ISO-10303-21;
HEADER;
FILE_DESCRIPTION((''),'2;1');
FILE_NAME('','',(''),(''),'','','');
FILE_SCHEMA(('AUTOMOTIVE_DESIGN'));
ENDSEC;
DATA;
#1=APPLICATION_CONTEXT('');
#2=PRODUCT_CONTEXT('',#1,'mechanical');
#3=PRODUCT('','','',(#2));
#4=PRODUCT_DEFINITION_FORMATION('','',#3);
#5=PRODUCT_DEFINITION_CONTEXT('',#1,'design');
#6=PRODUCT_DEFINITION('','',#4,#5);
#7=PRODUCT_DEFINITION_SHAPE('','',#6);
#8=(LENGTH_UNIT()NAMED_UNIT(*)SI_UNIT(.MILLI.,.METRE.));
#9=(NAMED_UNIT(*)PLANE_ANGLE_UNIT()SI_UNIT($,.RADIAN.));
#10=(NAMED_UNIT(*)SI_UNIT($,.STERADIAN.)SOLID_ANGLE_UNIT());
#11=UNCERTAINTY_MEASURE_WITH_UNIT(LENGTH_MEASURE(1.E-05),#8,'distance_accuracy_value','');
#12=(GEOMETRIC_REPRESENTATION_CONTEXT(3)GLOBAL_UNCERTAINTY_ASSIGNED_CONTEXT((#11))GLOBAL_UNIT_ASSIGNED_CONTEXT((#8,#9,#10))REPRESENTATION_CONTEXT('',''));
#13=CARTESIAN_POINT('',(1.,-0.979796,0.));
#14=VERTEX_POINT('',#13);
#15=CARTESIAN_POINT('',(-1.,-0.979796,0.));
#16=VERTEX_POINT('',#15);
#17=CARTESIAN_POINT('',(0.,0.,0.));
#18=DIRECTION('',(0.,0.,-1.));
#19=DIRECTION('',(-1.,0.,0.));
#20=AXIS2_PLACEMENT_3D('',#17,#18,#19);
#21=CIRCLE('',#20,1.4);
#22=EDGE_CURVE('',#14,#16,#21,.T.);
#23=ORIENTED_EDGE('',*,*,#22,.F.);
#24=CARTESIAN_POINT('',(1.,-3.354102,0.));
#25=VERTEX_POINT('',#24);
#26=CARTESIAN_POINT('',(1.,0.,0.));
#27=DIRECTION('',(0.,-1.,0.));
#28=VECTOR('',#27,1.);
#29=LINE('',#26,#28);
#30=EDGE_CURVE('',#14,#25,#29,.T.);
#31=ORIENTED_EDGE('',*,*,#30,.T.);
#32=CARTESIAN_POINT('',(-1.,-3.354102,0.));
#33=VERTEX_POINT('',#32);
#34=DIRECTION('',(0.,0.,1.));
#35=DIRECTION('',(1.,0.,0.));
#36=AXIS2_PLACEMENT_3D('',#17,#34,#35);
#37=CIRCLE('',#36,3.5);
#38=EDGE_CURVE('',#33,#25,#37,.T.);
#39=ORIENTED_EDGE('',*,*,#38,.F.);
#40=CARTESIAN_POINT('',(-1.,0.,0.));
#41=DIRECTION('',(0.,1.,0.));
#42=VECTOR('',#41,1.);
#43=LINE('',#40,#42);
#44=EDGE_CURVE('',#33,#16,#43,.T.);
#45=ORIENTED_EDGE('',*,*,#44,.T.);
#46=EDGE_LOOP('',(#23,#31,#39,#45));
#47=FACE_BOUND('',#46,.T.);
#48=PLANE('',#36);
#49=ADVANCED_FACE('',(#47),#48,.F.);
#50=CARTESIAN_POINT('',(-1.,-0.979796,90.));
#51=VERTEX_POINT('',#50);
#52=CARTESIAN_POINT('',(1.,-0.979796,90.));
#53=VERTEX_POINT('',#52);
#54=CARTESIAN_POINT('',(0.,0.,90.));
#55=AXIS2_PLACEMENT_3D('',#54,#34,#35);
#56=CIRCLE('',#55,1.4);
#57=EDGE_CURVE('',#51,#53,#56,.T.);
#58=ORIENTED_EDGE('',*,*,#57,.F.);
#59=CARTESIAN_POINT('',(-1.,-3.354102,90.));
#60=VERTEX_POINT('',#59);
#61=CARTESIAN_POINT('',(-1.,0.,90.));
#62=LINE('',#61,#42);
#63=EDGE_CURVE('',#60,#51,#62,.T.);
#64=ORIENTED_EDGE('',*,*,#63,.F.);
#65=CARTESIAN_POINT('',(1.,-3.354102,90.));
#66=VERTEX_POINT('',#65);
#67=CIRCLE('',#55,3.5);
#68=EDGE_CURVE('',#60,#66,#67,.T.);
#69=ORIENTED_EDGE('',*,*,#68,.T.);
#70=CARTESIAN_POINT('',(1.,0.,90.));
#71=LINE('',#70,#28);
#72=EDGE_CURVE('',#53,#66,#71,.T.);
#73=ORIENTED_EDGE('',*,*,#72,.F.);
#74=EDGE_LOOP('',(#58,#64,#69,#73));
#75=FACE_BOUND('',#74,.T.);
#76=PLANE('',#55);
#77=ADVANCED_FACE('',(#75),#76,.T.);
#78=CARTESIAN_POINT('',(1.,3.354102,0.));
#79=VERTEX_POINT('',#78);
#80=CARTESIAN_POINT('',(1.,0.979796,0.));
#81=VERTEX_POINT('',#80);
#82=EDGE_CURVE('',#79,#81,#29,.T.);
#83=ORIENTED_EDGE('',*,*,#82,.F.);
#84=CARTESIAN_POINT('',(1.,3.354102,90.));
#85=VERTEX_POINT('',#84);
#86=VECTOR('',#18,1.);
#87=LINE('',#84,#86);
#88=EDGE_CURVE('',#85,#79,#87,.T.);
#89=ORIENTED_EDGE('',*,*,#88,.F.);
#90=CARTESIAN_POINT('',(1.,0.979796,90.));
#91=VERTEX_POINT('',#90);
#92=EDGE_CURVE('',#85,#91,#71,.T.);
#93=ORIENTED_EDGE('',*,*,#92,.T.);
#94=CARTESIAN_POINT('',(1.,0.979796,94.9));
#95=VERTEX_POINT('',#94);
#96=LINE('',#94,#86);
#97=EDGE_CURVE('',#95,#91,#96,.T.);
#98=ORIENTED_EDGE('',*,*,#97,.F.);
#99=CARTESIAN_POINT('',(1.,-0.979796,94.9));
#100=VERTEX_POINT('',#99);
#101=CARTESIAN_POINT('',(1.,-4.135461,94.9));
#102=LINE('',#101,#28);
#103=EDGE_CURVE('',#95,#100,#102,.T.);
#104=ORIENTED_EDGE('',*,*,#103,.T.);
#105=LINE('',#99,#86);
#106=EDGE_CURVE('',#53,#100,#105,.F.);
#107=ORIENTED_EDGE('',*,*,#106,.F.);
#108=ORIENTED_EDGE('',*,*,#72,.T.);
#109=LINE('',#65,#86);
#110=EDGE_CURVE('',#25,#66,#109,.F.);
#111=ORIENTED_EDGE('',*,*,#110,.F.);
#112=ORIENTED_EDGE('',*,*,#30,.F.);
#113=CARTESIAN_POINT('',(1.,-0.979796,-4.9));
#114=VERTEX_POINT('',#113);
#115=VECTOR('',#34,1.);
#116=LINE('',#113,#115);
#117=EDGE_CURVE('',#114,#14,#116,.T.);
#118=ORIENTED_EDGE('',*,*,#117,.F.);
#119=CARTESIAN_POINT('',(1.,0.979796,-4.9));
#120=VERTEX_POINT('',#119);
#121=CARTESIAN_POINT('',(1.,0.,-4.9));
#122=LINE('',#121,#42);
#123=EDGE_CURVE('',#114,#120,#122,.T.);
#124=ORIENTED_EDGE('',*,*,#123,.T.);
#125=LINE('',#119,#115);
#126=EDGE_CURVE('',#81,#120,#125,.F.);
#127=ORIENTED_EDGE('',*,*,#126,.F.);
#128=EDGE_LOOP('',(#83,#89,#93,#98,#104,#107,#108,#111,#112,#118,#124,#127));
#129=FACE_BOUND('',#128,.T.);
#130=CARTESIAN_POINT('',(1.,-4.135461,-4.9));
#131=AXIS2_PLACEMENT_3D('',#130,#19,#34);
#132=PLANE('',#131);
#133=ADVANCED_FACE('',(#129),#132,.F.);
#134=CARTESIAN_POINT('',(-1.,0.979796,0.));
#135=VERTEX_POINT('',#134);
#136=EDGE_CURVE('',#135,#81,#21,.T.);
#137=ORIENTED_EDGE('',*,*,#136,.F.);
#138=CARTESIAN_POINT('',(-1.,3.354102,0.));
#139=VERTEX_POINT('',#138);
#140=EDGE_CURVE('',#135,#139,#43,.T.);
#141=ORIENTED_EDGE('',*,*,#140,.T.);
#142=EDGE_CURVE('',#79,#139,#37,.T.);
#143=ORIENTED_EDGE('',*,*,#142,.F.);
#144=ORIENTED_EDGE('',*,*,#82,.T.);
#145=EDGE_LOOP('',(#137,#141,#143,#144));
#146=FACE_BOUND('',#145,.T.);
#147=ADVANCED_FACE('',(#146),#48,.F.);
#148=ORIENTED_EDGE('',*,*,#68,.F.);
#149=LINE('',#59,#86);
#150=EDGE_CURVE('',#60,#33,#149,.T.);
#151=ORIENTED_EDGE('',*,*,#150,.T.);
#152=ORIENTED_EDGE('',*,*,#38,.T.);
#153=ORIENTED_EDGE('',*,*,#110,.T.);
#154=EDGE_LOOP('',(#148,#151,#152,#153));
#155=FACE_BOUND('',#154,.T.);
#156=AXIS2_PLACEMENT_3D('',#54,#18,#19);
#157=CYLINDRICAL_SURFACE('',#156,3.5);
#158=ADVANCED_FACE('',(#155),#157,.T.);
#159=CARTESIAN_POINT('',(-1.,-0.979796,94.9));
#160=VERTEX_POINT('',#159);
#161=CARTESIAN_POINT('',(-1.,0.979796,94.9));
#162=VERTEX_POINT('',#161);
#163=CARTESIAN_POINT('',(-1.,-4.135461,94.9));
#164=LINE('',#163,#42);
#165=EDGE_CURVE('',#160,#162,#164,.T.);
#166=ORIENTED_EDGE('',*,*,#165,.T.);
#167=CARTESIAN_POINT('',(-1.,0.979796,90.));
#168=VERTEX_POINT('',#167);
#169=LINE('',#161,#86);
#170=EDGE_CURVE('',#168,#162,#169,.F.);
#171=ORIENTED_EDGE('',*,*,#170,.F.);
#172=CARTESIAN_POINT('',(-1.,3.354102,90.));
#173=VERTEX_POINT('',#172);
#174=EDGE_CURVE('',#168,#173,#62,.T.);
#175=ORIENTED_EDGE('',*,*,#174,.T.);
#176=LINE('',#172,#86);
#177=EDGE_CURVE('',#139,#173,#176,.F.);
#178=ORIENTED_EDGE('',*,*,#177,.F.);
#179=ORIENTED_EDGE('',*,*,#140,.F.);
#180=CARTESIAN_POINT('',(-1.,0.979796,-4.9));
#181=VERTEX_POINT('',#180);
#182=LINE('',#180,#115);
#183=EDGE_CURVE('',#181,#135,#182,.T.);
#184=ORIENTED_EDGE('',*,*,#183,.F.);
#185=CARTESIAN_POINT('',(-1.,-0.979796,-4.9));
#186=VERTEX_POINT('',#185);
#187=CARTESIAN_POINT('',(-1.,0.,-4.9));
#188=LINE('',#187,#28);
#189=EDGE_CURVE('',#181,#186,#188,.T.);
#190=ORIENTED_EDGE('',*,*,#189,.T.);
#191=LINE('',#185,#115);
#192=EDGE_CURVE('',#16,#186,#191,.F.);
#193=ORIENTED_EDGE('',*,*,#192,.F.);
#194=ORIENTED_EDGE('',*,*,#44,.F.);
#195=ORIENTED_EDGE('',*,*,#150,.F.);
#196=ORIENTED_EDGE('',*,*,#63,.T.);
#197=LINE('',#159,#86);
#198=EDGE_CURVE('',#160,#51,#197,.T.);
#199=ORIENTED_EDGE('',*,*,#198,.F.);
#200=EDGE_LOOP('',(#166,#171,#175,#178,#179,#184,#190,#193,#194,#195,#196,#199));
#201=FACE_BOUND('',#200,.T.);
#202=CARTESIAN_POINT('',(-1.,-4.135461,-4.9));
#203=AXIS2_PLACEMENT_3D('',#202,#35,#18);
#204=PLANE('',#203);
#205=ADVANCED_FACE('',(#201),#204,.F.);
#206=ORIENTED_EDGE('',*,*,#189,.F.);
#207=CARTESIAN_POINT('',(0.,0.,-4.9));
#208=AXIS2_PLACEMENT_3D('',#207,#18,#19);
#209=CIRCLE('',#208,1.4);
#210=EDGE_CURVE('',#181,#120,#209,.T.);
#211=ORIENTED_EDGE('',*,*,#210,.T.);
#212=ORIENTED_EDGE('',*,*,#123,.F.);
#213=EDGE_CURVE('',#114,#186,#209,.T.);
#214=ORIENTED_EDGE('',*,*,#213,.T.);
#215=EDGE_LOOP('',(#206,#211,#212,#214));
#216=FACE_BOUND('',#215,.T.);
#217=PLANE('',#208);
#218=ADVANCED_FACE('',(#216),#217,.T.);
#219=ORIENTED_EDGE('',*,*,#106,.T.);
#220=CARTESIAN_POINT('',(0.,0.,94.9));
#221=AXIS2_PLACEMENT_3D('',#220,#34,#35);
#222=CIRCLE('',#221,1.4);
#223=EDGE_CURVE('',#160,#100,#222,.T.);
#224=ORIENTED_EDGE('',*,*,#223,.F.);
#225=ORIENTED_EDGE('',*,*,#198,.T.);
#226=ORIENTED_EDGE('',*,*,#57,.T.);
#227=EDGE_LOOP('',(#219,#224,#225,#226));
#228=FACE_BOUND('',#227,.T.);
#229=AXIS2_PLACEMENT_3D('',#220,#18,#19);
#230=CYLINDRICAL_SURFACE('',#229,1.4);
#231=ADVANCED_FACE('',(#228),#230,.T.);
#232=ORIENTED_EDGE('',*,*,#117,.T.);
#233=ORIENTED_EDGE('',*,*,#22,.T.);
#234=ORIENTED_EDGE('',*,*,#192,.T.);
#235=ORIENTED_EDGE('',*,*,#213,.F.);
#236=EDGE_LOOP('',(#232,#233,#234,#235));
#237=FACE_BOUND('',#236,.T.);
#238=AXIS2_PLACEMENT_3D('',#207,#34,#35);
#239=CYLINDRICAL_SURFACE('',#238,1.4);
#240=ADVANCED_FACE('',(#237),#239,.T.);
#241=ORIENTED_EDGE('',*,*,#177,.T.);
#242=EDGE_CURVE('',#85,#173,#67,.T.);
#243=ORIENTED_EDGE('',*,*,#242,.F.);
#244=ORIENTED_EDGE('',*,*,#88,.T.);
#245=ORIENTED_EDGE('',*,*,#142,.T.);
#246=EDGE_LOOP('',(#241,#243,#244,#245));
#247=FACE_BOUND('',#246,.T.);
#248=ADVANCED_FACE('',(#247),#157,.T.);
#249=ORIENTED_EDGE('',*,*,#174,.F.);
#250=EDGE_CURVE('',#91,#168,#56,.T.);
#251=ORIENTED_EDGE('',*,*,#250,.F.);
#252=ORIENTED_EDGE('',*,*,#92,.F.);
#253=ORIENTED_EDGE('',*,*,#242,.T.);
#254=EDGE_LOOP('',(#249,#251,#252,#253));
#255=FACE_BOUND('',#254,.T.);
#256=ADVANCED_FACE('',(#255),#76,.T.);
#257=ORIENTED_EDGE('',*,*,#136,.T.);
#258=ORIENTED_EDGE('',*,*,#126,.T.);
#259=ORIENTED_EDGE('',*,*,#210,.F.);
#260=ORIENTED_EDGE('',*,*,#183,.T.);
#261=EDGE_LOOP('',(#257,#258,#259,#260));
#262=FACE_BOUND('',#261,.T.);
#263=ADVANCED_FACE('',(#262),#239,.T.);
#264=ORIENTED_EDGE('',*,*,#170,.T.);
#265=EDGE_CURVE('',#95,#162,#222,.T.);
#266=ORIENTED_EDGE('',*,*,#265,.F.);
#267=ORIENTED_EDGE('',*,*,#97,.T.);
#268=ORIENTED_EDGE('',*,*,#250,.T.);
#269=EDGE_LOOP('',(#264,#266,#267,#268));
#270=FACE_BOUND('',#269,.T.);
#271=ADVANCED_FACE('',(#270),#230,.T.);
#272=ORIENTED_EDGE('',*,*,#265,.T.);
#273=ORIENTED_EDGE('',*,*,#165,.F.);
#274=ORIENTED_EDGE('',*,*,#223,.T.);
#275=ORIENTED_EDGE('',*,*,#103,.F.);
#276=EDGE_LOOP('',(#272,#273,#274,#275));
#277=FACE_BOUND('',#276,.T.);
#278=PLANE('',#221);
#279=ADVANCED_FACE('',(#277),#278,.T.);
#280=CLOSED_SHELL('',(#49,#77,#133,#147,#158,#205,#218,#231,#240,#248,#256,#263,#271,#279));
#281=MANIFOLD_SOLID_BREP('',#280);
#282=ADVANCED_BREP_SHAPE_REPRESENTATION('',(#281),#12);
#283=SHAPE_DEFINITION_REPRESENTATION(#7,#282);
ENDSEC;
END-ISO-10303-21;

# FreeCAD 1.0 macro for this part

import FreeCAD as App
import Part
import Sketcher


def add_polygon(sketch, points):
    """Adds a closed chain of lines whose ends are joined by coincident constraints."""
    first, n = sketch.GeometryCount, len(points)
    for a, b in zip(points, points[1:] + points[:1]):
        sketch.addGeometry(Part.LineSegment(App.Vector(*a, 0), App.Vector(*b, 0)), False)
    for i in range(n):
        sketch.addConstraint(Sketcher.Constraint("Coincident", first + i, 2, first + (i + 1) % n, 1))

doc = App.newDocument("Part")
body = doc.addObject("PartDesign::Body", "Body")

# Sketch on XY plane
sketch1 = doc.addObject("Sketcher::SketchObject", "Sketch")
body.addObject(sketch1)
sketch1.AttachmentSupport = (doc.XY_Plane, [""])
sketch1.MapMode = "FlatFace"
sketch1.addGeometry(Part.Circle(App.Vector(0, 0, 0), App.Vector(0, 0, 1), 3.5), False)
sketch1.addConstraint([
    Sketcher.Constraint("Coincident", 0, 3, -1, 1),
    Sketcher.Constraint("Diameter", 0, 7.0),
])
pad1 = doc.addObject("PartDesign::Pad", "Pad")
body.addObject(pad1)
pad1.Profile = sketch1
pad1.Length = 90

# Sketch on XY plane
sketch2 = doc.addObject("Sketcher::SketchObject", "Sketch001")
body.addObject(sketch2)
sketch2.AttachmentSupport = (doc.XY_Plane, [""])
sketch2.MapMode = "FlatFace"
sketch2.AttachmentOffset = App.Placement(App.Vector(0, 0, 90), App.Rotation())
sketch2.addGeometry(Part.Circle(App.Vector(0, 0, 0), App.Vector(0, 0, 1), 1.4), False)
sketch2.addConstraint([
    Sketcher.Constraint("Coincident", 0, 3, -1, 1),
    Sketcher.Constraint("Diameter", 0, 2.8),
])
pad2 = doc.addObject("PartDesign::Pad", "Pad001")
body.addObject(pad2)
pad2.Profile = sketch2
pad2.Length = 4.9

# Sketch on XY plane
sketch3 = doc.addObject("Sketcher::SketchObject", "Sketch002")
body.addObject(sketch3)
sketch3.AttachmentSupport = (doc.XY_Plane, [""])
sketch3.MapMode = "FlatFace"
sketch3.AttachmentOffset = App.Placement(App.Vector(0, 0, -4.9), App.Rotation())
sketch3.addGeometry(Part.Circle(App.Vector(0, 0, 0), App.Vector(0, 0, 1), 1.4), False)
sketch3.addConstraint([
    Sketcher.Constraint("Coincident", 0, 3, -1, 1),
    Sketcher.Constraint("Diameter", 0, 2.8),
])
pad3 = doc.addObject("PartDesign::Pad", "Pad002")
body.addObject(pad3)
pad3.Profile = sketch3
pad3.Length = 4.9

# Sketch on XY plane
sketch4 = doc.addObject("Sketcher::SketchObject", "Sketch003")
body.addObject(sketch4)
sketch4.AttachmentSupport = (doc.XY_Plane, [""])
sketch4.MapMode = "FlatFace"
sketch4.AttachmentOffset = App.Placement(App.Vector(0, 0, 90), App.Rotation())
add_polygon(sketch4, [(1, 3.9), (1, -4.1), (5.2, -4.1), (5.2, 3.9)])  # lines 0-3
sketch4.addConstraint([
    Sketcher.Constraint("Vertical", 0),
    Sketcher.Constraint("Horizontal", 1),
    Sketcher.Constraint("Vertical", 2),
    Sketcher.Constraint("Horizontal", 3),
    Sketcher.Constraint("DistanceX", -1, 1, 0, 2, 1.0),
    Sketcher.Constraint("DistanceX", 1, 1, 1, 2, 4.192865),
    Sketcher.Constraint("DistanceY", 0, 2, 0, 1, 8.003817),
    Sketcher.Constraint("DistanceY", 0, 2, -1, 1, 4.135461),
])
pocket1 = doc.addObject("PartDesign::Pocket", "Pocket")
body.addObject(pocket1)
pocket1.Profile = sketch4
pocket1.Type = "ThroughAll"
pocket1.Midplane = True

# Sketch on XY plane
sketch5 = doc.addObject("Sketcher::SketchObject", "Sketch004")
body.addObject(sketch5)
sketch5.AttachmentSupport = (doc.XY_Plane, [""])
sketch5.MapMode = "FlatFace"
sketch5.AttachmentOffset = App.Placement(App.Vector(0, 0, 90), App.Rotation())
add_polygon(sketch5, [(-4.4, 3.9), (-4.4, -4.1), (-1, -4.1), (-1, 3.9)])  # lines 0-3
sketch5.addConstraint([
    Sketcher.Constraint("Vertical", 0),
    Sketcher.Constraint("Horizontal", 1),
    Sketcher.Constraint("Vertical", 2),
    Sketcher.Constraint("Horizontal", 3),
    Sketcher.Constraint("DistanceX", 1, 2, -1, 1, 1.0),
    Sketcher.Constraint("DistanceX", 1, 1, 1, 2, 3.359838),
    Sketcher.Constraint("DistanceY", 0, 2, 0, 1, 7.994787),
    Sketcher.Constraint("DistanceY", 0, 2, -1, 1, 4.135461),
])
pocket2 = doc.addObject("PartDesign::Pocket", "Pocket001")
body.addObject(pocket2)
pocket2.Profile = sketch5
pocket2.Type = "ThroughAll"
pocket2.Midplane = True

doc.recompute()
